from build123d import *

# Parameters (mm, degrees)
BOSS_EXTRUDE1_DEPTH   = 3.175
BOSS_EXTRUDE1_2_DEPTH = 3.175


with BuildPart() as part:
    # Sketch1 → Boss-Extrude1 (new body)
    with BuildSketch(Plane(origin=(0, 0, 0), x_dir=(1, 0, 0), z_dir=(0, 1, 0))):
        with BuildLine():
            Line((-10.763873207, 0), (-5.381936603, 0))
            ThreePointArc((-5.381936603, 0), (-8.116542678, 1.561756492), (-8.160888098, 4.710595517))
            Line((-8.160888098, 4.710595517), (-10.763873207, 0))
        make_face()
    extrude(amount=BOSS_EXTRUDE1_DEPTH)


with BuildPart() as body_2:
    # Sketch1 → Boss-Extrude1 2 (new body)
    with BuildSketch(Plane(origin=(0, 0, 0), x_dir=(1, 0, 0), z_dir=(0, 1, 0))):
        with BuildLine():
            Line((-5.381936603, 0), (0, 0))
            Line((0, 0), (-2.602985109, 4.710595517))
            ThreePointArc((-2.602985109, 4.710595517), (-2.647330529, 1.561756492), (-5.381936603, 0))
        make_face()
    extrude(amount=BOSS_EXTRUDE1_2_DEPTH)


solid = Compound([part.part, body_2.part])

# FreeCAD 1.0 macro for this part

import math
import FreeCAD as App
import Part
import Sketcher
from FreeCAD import Vector
Q = App.Units.Quantity

doc = App.newDocument("Part")
params = doc.addObject("Spreadsheet::Sheet", "Params")
for row, (alias, value) in enumerate([
    ("sketch1_radius", "0.125 in"),
    ("pad1_length", "0.125 in"),
    ("sketch2_radius", "0.125 in"),
    ("pad2_length", "0.125 in"),
], start=1):
    params.set(f"A{row}", alias)
    params.set(f"B{row}", "=" + value)
    params.setAlias(f"B{row}", alias)

body = doc.addObject("PartDesign::Body", "Body")

# Sketch on XZ plane
sketch1 = body.newObject("Sketcher::SketchObject", "Sketch")
sketch1.AttachmentSupport = (doc.getObject("XZ_Plane"), [""])
sketch1.MapMode = "FlatFace"
sketch1.addGeometry([
    Part.LineSegment(Vector(-10.8, 0, 0), Vector(-5.4, 0, 0)),
    Part.ArcOfCircle(Part.Circle(Vector(-5.4, -3.2, 0), Vector(0, 0, 1), 3.2), math.radians(90), math.radians(209)),
    Part.LineSegment(Vector(-8.2, -4.7, 0), Vector(-10.8, 0, 0)),
], False)
sketch1.addConstraint([
    Sketcher.Constraint("Tangent", 0, 2, 1, 1),
    Sketcher.Constraint("Tangent", 1, 2, 2, 1),
    Sketcher.Constraint("Coincident", 2, 2, 0, 1),
    Sketcher.Constraint("Horizontal", 0),
    Sketcher.Constraint("PointOnObject", 0, 2, -1),
    Sketcher.Constraint("Radius", 1, Q("0.125 in")),
    Sketcher.Constraint("DistanceX", 0, 1, 0, 2, Q("5.381937 mm")),
    Sketcher.Constraint("DistanceX", 1, 2, -1, 1, Q("8.160888 mm")),
])
sketch1.setExpression("Constraints[5]", "Params.sketch1_radius")
pad1 = body.newObject("PartDesign::Pad", "Pad")
pad1.Profile = sketch1
pad1.setExpression("Length", "Params.pad1_length")
pad1.Reversed = True
body2 = doc.addObject("PartDesign::Body", "Body001")

# Sketch on XZ plane
sketch2 = body2.newObject("Sketcher::SketchObject", "Sketch001")
sketch2.AttachmentSupport = (doc.getObject("XZ_Plane001"), [""])
sketch2.MapMode = "FlatFace"
sketch2.addGeometry([
    Part.LineSegment(Vector(-5.4, 0, 0), Vector(0, 0, 0)),
    Part.LineSegment(Vector(0, 0, 0), Vector(-2.6, -4.7, 0)),
    Part.ArcOfCircle(Part.Circle(Vector(-5.4, -3.2, 0), Vector(0, 0, 1), 3.2), math.radians(-29), math.radians(90)),
], False)
sketch2.addConstraint([
    Sketcher.Constraint("Coincident", 0, 2, 1, 1),
    Sketcher.Constraint("Tangent", 1, 2, 2, 1),
    Sketcher.Constraint("Tangent", 2, 2, 0, 1),
    Sketcher.Constraint("Horizontal", 0),
    Sketcher.Constraint("Coincident", 0, 2, -1, 1),
    Sketcher.Constraint("Radius", 2, Q("0.125 in")),
    Sketcher.Constraint("DistanceX", 0, 1, 0, 2, Q("5.381937 mm")),
])
sketch2.setExpression("Constraints[5]", "Params.sketch2_radius")
pad2 = body2.newObject("PartDesign::Pad", "Pad001")
pad2.Profile = sketch2
pad2.setExpression("Length", "Params.pad2_length")
pad2.Reversed = True

doc.recompute()
